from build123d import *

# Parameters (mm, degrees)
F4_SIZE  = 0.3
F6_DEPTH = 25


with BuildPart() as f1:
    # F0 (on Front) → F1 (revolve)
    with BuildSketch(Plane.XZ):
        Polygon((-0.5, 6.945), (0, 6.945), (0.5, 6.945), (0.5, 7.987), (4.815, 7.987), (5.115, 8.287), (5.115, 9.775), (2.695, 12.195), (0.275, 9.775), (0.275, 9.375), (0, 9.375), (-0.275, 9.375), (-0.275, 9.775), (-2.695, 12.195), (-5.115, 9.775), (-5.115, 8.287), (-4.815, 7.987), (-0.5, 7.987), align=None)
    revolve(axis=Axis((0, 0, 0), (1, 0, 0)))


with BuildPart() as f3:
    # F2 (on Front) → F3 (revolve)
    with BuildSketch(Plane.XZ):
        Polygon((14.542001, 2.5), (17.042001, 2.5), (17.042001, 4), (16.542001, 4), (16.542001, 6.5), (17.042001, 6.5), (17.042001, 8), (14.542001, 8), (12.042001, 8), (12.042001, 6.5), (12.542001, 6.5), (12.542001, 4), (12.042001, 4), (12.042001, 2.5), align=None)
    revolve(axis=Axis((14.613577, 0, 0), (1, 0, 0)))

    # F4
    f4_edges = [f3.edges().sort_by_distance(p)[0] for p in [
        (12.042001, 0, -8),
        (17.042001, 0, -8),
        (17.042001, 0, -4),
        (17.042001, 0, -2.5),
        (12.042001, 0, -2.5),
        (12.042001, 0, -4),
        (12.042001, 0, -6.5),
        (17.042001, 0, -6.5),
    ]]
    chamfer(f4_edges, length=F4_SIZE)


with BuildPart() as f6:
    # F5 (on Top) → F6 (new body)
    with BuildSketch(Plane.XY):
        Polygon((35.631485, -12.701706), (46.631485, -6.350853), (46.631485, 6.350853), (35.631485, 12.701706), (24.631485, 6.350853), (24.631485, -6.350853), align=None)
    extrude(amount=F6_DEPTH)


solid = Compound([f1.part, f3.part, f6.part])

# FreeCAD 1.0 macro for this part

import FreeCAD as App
import Part
import Sketcher
Q = App.Units.Quantity


def edges_at(feature, points):
    """Names of the edges that pass closest to the given points."""
    edges = feature.Shape.Edges
    near = lambda p: min(range(len(edges)), key=lambda i: edges[i].distToShape(Part.Vertex(*p))[0])
    return sorted({f"Edge{near(p) + 1}" for p in points})

doc = App.newDocument("Part")
body = doc.addObject("PartDesign::Body", "Body")

sketch1 = body.newObject("Sketcher::SketchObject", "Sketch")
sketch1.AttachmentSupport = (doc.getObject("XZ_Plane"), [""])
sketch1.MapMode = "FlatFace"
sketch1.addGeometry([
    Part.LineSegment(App.Vector(-0.5, 6.95, 0), App.Vector(0.5, 6.95, 0)),
    Part.LineSegment(App.Vector(0.5, 6.95, 0), App.Vector(0.5, 7.99, 0)),
    Part.LineSegment(App.Vector(0.5, 7.99, 0), App.Vector(4.82, 7.99, 0)),
    Part.LineSegment(App.Vector(4.82, 7.99, 0), App.Vector(5.12, 8.29, 0)),
    Part.LineSegment(App.Vector(5.12, 8.29, 0), App.Vector(5.12, 9.78, 0)),
    Part.LineSegment(App.Vector(5.12, 9.78, 0), App.Vector(2.69, 12.2, 0)),
    Part.LineSegment(App.Vector(2.69, 12.2, 0), App.Vector(0.28, 9.78, 0)),
    Part.LineSegment(App.Vector(0.28, 9.78, 0), App.Vector(0.28, 9.38, 0)),
    Part.LineSegment(App.Vector(0.28, 9.38, 0), App.Vector(-0.28, 9.38, 0)),
    Part.LineSegment(App.Vector(-0.28, 9.38, 0), App.Vector(-0.28, 9.78, 0)),
    Part.LineSegment(App.Vector(-0.28, 9.78, 0), App.Vector(-2.69, 12.2, 0)),
    Part.LineSegment(App.Vector(-2.69, 12.2, 0), App.Vector(-5.12, 9.78, 0)),
    Part.LineSegment(App.Vector(-5.12, 9.78, 0), App.Vector(-5.12, 8.29, 0)),
    Part.LineSegment(App.Vector(-5.12, 8.29, 0), App.Vector(-4.82, 7.99, 0)),
    Part.LineSegment(App.Vector(-4.82, 7.99, 0), App.Vector(-0.5, 7.99, 0)),
    Part.LineSegment(App.Vector(-0.5, 7.99, 0), App.Vector(-0.5, 6.95, 0)),
], False)
sketch1.addConstraint([
    Sketcher.Constraint("Coincident", 0, 2, 1, 1),
    Sketcher.Constraint("Coincident", 1, 2, 2, 1),
    Sketcher.Constraint("Coincident", 2, 2, 3, 1),
    Sketcher.Constraint("Coincident", 3, 2, 4, 1),
    Sketcher.Constraint("Coincident", 4, 2, 5, 1),
    Sketcher.Constraint("Coincident", 5, 2, 6, 1),
    Sketcher.Constraint("Coincident", 6, 2, 7, 1),
    Sketcher.Constraint("Coincident", 7, 2, 8, 1),
    Sketcher.Constraint("Coincident", 8, 2, 9, 1),
    Sketcher.Constraint("Coincident", 9, 2, 10, 1),
    Sketcher.Constraint("Coincident", 10, 2, 11, 1),
    Sketcher.Constraint("Coincident", 11, 2, 12, 1),
    Sketcher.Constraint("Coincident", 12, 2, 13, 1),
    Sketcher.Constraint("Coincident", 13, 2, 14, 1),
    Sketcher.Constraint("Coincident", 14, 2, 15, 1),
    Sketcher.Constraint("Coincident", 15, 2, 0, 1),
    Sketcher.Constraint("Horizontal", 0),
    Sketcher.Constraint("Vertical", 1),
    Sketcher.Constraint("Horizontal", 2),
    Sketcher.Constraint("Vertical", 4),
    Sketcher.Constraint("Vertical", 7),
    Sketcher.Constraint("Horizontal", 8),
    Sketcher.Constraint("Vertical", 9),
    Sketcher.Constraint("Vertical", 12),
    Sketcher.Constraint("Horizontal", 14),
    Sketcher.Constraint("Vertical", 15),
    Sketcher.Constraint("Symmetric", 6, 2, 9, 2, -2),
    Sketcher.Constraint("Symmetric", 5, 2, 10, 2, -2),
    Sketcher.Constraint("Symmetric", 4, 2, 11, 2, -2),
    Sketcher.Constraint("Symmetric", 2, 2, 13, 2, -2),
    Sketcher.Constraint("Perpendicular", 3, 5),
    Sketcher.Constraint("Perpendicular", 5, 6),
    Sketcher.Constraint("Perpendicular", 6, 10),
    Sketcher.Constraint("Perpendicular", 11, 13),
    Sketcher.Constraint("Horizontal", 4, 2, 6, 2),
    Sketcher.Constraint("Equal", 2, 14),
    Sketcher.Constraint("DistanceX", 0, 1, 0, 2, Q("1 mm")),
    Sketcher.Constraint("DistanceY", 7, 2, 7, 1, Q("0.4 mm")),
    Sketcher.Constraint("DistanceX", 8, 2, 8, 1, Q("0.55 mm")),
    Sketcher.Constraint("DistanceX", 2, 2, 3, 2, Q("0.3 mm")),
    Sketcher.Constraint("DistanceX", 2, 1, 2, 2, Q("4.315 mm")),
    Sketcher.Constraint("DistanceY", 1, 1, 1, 2, Q("1.042 mm")),
    Sketcher.Constraint("DistanceY", 4, 1, 4, 2, Q("1.488 mm")),
    Sketcher.Constraint("DistanceY", -1, 1, 0, 2, Q("6.945 mm")),
])
revolution = body.newObject("PartDesign::Revolution", "Revolution")
revolution.Profile = sketch1
revolution.ReferenceAxis = (sketch1, ["H_Axis"])
revolution.Angle = 360
body2 = doc.addObject("PartDesign::Body", "Body001")

sketch2 = body2.newObject("Sketcher::SketchObject", "Sketch001")
sketch2.AttachmentSupport = (doc.getObject("XZ_Plane001"), [""])
sketch2.MapMode = "FlatFace"
sketch2.addGeometry([
    Part.LineSegment(App.Vector(17, 2.5, 0), App.Vector(17, 4, 0)),
    Part.LineSegment(App.Vector(17, 4, 0), App.Vector(16.5, 4, 0)),
    Part.LineSegment(App.Vector(16.5, 4, 0), App.Vector(16.5, 6.5, 0)),
    Part.LineSegment(App.Vector(16.5, 6.5, 0), App.Vector(17, 6.5, 0)),
    Part.LineSegment(App.Vector(17, 6.5, 0), App.Vector(17, 8, 0)),
    Part.LineSegment(App.Vector(17, 8, 0), App.Vector(12, 8, 0)),
    Part.LineSegment(App.Vector(12, 8, 0), App.Vector(12, 6.5, 0)),
    Part.LineSegment(App.Vector(12, 6.5, 0), App.Vector(12.5, 6.5, 0)),
    Part.LineSegment(App.Vector(12.5, 6.5, 0), App.Vector(12.5, 4, 0)),
    Part.LineSegment(App.Vector(12.5, 4, 0), App.Vector(12, 4, 0)),
    Part.LineSegment(App.Vector(12, 4, 0), App.Vector(12, 2.5, 0)),
    Part.LineSegment(App.Vector(12, 2.5, 0), App.Vector(17, 2.5, 0)),
], False)
sketch2.addConstraint([
    Sketcher.Constraint("Coincident", 0, 2, 1, 1),
    Sketcher.Constraint("Coincident", 1, 2, 2, 1),
    Sketcher.Constraint("Coincident", 2, 2, 3, 1),
    Sketcher.Constraint("Coincident", 3, 2, 4, 1),
    Sketcher.Constraint("Coincident", 4, 2, 5, 1),
    Sketcher.Constraint("Coincident", 5, 2, 6, 1),
    Sketcher.Constraint("Coincident", 6, 2, 7, 1),
    Sketcher.Constraint("Coincident", 7, 2, 8, 1),
    Sketcher.Constraint("Coincident", 8, 2, 9, 1),
    Sketcher.Constraint("Coincident", 9, 2, 10, 1),
    Sketcher.Constraint("Coincident", 10, 2, 11, 1),
    Sketcher.Constraint("Coincident", 11, 2, 0, 1),
    Sketcher.Constraint("Vertical", 0),
    Sketcher.Constraint("Horizontal", 1),
    Sketcher.Constraint("Vertical", 2),
    Sketcher.Constraint("Horizontal", 3),
    Sketcher.Constraint("Vertical", 4),
    Sketcher.Constraint("Horizontal", 5),
    Sketcher.Constraint("Vertical", 6),
    Sketcher.Constraint("Horizontal", 7),
    Sketcher.Constraint("Vertical", 8),
    Sketcher.Constraint("Horizontal", 9),
    Sketcher.Constraint("Vertical", 10),
    Sketcher.Constraint("Horizontal", 11),
    Sketcher.Constraint("Horizontal", 3, 2, 6, 2),
    Sketcher.Constraint("Horizontal", 1, 2, 8, 2),
    Sketcher.Constraint("Vertical", 0, 2, 3, 2),
    Sketcher.Constraint("Vertical", 6, 2, 9, 2),
    Sketcher.Constraint("Equal", 3, 7),
    Sketcher.Constraint("Equal", 0, 4),
    Sketcher.Constraint("DistanceX", 5, 2, 5, 1, Q("5 mm")),
    Sketcher.Constraint("DistanceX", 1, 2, 1, 1, Q("0.5 mm")),
    Sketcher.Constraint("DistanceY", 0, 1, 0, 2, Q("1.5 mm")),
    Sketcher.Constraint("DistanceY", 2, 1, 2, 2, Q("2.5 mm")),
    Sketcher.Constraint("DistanceY", -1, 1, 0, 2, Q("4 mm")),
    Sketcher.Constraint("DistanceX", -1, 1, 0, 2, Q("17.042001 mm")),
])
revolution2 = body2.newObject("PartDesign::Revolution", "Revolution001")
revolution2.Profile = sketch2
revolution2.ReferenceAxis = (sketch2, ["H_Axis"])
revolution2.Angle = 360
doc.recompute()

chamfer = body2.newObject("PartDesign::Chamfer", "Chamfer")
chamfer.Base = (revolution2, edges_at(revolution2, [
    (12.042, 0, -8),
    (17.042, 0, -8),
    (17.042, 0, -4),
    (17.042, 0, -2.5),
    (12.042, 0, -2.5),
    (12.042, 0, -4),
    (12.042, 0, -6.5),
    (17.042, 0, -6.5),
]))
chamfer.Size = 0.3
body3 = doc.addObject("PartDesign::Body", "Body002")

sketch3 = body3.newObject("Sketcher::SketchObject", "Sketch002")
sketch3.AttachmentSupport = (doc.getObject("XY_Plane002"), [""])
sketch3.MapMode = "FlatFace"
sketch3.addGeometry([
    Part.LineSegment(App.Vector(36, -13, 0), App.Vector(47, -6, 0)),
    Part.LineSegment(App.Vector(47, -6, 0), App.Vector(47, 6, 0)),
    Part.LineSegment(App.Vector(47, 6, 0), App.Vector(36, 13, 0)),
    Part.LineSegment(App.Vector(36, 13, 0), App.Vector(25, 6, 0)),
    Part.LineSegment(App.Vector(25, 6, 0), App.Vector(25, -6, 0)),
    Part.LineSegment(App.Vector(25, -6, 0), App.Vector(36, -13, 0)),
], False)
sketch3.addConstraint([
    Sketcher.Constraint("Coincident", 0, 2, 1, 1),
    Sketcher.Constraint("Coincident", 1, 2, 2, 1),
    Sketcher.Constraint("Coincident", 2, 2, 3, 1),
    Sketcher.Constraint("Coincident", 3, 2, 4, 1),
    Sketcher.Constraint("Coincident", 4, 2, 5, 1),
    Sketcher.Constraint("Coincident", 5, 2, 0, 1),
    Sketcher.Constraint("Vertical", 1),
    Sketcher.Constraint("Vertical", 4),
    Sketcher.Constraint("Symmetric", 2, 2, 5, 2, -1),
    Sketcher.Constraint("Parallel", 0, 3),
    Sketcher.Constraint("Parallel", 2, 5),
    Sketcher.Constraint("Horizontal", 1, 2, 3, 2),
    Sketcher.Constraint("Horizontal", 0, 2, 4, 2),
    Sketcher.Constraint("Angle", 0, Q("30 deg")),
    Sketcher.Constraint("DistanceX", 2, 2, 1, 2, Q("11 mm")),
    Sketcher.Constraint("DistanceY", 1, 1, 1, 2, Q("12.701706 mm")),
    Sketcher.Constraint("DistanceX", -1, 1, 0, 2, Q("46.631485 mm")),
])
pad1 = body3.newObject("PartDesign::Pad", "Pad")
pad1.Profile = sketch3
pad1.Length = 25

doc.recompute()
